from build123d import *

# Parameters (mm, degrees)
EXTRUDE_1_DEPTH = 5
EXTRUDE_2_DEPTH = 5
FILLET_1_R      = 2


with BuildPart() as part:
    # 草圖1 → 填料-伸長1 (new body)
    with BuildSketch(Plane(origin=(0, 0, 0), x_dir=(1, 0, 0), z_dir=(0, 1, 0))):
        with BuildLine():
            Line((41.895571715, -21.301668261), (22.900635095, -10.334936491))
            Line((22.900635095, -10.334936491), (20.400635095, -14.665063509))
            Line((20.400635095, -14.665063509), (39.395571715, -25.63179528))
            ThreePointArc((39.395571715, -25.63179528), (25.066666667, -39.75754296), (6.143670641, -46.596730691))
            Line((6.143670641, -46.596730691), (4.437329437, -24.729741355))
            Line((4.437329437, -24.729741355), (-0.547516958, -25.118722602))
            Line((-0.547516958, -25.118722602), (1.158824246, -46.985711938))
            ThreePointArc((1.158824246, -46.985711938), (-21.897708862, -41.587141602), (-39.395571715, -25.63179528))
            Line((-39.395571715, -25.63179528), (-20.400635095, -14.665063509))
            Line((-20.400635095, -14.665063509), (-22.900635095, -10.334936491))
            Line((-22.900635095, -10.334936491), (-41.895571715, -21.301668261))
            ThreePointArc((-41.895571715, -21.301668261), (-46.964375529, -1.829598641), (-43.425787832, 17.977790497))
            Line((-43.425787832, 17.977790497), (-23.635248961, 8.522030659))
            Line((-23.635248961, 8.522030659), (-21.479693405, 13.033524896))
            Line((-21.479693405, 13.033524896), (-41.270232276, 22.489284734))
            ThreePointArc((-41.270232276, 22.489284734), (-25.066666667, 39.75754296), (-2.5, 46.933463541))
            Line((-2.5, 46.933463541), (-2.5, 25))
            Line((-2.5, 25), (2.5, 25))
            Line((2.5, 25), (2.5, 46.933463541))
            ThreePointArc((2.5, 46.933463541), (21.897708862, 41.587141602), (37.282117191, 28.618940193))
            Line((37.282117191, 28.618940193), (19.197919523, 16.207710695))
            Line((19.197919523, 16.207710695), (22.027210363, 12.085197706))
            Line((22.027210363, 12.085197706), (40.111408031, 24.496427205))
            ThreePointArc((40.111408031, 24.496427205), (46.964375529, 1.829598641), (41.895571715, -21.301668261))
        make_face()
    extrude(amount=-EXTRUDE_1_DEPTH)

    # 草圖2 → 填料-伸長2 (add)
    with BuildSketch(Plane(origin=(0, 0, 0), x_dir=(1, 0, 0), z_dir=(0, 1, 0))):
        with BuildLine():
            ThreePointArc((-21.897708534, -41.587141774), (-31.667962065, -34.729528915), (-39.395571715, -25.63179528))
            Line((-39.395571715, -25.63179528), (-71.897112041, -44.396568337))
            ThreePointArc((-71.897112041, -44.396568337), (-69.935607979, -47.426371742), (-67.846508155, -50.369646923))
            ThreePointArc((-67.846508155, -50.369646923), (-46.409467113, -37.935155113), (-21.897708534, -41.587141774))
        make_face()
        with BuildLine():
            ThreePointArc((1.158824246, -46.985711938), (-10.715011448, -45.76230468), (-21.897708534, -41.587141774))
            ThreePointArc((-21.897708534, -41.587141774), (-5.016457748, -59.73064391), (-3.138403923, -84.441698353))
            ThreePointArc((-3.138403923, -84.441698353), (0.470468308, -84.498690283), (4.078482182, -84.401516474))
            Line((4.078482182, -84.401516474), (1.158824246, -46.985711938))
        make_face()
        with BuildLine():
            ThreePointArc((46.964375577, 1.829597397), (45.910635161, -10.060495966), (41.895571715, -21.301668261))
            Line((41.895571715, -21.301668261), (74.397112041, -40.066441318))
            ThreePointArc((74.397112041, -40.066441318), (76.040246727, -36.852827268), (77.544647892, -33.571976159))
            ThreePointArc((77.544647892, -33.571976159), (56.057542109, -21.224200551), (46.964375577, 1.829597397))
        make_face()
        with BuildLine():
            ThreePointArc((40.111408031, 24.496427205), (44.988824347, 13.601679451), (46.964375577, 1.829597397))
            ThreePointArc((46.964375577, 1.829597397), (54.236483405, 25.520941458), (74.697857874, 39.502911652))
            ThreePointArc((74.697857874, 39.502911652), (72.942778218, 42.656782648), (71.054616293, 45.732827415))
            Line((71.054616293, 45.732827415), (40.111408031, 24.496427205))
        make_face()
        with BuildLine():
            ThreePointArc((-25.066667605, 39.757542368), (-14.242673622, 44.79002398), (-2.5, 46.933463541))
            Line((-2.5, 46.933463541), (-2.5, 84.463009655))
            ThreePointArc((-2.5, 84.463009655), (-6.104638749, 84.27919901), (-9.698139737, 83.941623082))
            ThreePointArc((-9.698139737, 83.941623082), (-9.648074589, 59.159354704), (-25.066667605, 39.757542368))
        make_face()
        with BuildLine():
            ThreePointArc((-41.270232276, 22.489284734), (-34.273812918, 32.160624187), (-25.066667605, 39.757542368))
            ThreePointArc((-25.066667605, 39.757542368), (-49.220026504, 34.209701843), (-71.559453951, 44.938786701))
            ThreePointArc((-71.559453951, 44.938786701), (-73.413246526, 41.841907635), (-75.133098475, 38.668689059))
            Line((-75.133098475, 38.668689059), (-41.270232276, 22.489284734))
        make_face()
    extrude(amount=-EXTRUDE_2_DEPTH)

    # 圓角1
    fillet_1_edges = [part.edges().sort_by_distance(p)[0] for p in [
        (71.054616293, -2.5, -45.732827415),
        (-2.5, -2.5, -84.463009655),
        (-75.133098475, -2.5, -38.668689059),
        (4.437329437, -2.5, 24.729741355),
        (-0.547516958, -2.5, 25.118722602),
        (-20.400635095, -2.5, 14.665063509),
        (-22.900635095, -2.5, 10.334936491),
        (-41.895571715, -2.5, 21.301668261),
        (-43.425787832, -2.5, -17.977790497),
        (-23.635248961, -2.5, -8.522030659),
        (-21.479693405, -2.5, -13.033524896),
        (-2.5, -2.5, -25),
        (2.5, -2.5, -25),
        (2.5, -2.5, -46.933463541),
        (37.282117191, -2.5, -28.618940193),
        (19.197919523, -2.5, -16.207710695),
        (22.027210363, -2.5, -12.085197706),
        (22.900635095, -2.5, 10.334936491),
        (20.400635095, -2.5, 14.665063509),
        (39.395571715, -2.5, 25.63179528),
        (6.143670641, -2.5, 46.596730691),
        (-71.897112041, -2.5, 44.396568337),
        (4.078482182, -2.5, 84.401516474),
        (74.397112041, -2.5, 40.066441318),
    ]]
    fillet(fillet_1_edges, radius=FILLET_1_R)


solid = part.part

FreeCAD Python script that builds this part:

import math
import FreeCAD as App
import Part
import Sketcher

V = App.Vector
Q = App.Units.Quantity


def edges_at(feature, points):
    """Names of the edges that pass closest to the given points."""
    edges = feature.Shape.Edges
    near = lambda p: min(range(len(edges)), key=lambda i: edges[i].distToShape(Part.Vertex(*p))[0])
    return sorted({f"Edge{near(p) + 1}" for p in points})

doc = App.newDocument("Part")
body = doc.addObject("PartDesign::Body", "Body")

sketch1 = body.newObject("Sketcher::SketchObject", "Sketch")
sketch1.AttachmentSupport = (doc.getObject("XZ_Plane"), [""])
sketch1.MapMode = "FlatFace"
sketch1.addGeometry([
    Part.LineSegment(V(22.900635, 10.334936, 0), V(41.895572, 21.301668, 0)),
    Part.ArcOfCircle(Part.Circle(V(0, 0, 0), V(0, 0, 1), 47), math.radians(-31.412818), math.radians(26.950913)),
    Part.LineSegment(V(40.111408, -24.496427, 0), V(22.02721, -12.085198, 0)),
    Part.LineSegment(V(22.02721, -12.085198, 0), V(19.19792, -16.207711, 0)),
    Part.LineSegment(V(19.19792, -16.207711, 0), V(37.282117, -28.61894, 0)),
    Part.ArcOfCircle(Part.Circle(V(0, 0, 0), V(0, 0, 1), 47), math.radians(-86.950913), math.radians(-37.510992)),
    Part.LineSegment(V(2.5, -46.933464, 0), V(2.5, -25, 0)),
    Part.LineSegment(V(2.5, -25, 0), V(-2.5, -25, 0)),
    Part.LineSegment(V(-2.5, -25, 0), V(-2.5, -46.933464, 0)),
    Part.ArcOfCircle(Part.Circle(V(0, 0, 0), V(0, 0, 1), 47), math.radians(-151.412818), math.radians(-93.049087)),
    Part.LineSegment(V(-41.270232, -22.489285, 0), V(-21.479693, -13.033525, 0)),
    Part.LineSegment(V(-21.479693, -13.033525, 0), V(-23.635249, -8.522031, 0)),
    Part.LineSegment(V(-23.635249, -8.522031, 0), V(-43.425788, -17.97779, 0)),
    Part.ArcOfCircle(Part.Circle(V(0, 0, 0), V(0, 0, 1), 47), math.radians(153.049087), math.radians(202.489008)),
    Part.LineSegment(V(-41.895572, 21.301668, 0), V(-22.900635, 10.334936, 0)),
    Part.LineSegment(V(-22.900635, 10.334936, 0), V(-20.400635, 14.665064, 0)),
    Part.LineSegment(V(-20.400635, 14.665064, 0), V(-39.395572, 25.631795, 0)),
    Part.ArcOfCircle(Part.Circle(V(0, 0, 0), V(0, 0, 1), 47), math.radians(88.587182), math.radians(146.950913)),
    Part.LineSegment(V(1.158824, 46.985712, 0), V(-0.547517, 25.118723, 0)),
    Part.LineSegment(V(-0.547517, 25.118723, 0), V(4.437329, 24.729741, 0)),
    Part.LineSegment(V(4.437329, 24.729741, 0), V(6.143671, 46.596731, 0)),
    Part.ArcOfCircle(Part.Circle(V(0, 0, 0), V(0, 0, 1), 47), math.radians(33.049087), math.radians(82.489008)),
    Part.LineSegment(V(39.395572, 25.631795, 0), V(20.400635, 14.665064, 0)),
    Part.LineSegment(V(20.400635, 14.665064, 0), V(22.900635, 10.334936, 0)),
], False)
sketch1.addConstraint([
    Sketcher.Constraint("Coincident", 0, 2, 1, 2),
    Sketcher.Constraint("Coincident", 1, 1, 2, 1),
    Sketcher.Constraint("Coincident", 2, 2, 3, 1),
    Sketcher.Constraint("Coincident", 3, 2, 4, 1),
    Sketcher.Constraint("Coincident", 4, 2, 5, 2),
    Sketcher.Constraint("Coincident", 5, 1, 6, 1),
    Sketcher.Constraint("Coincident", 6, 2, 7, 1),
    Sketcher.Constraint("Coincident", 7, 2, 8, 1),
    Sketcher.Constraint("Coincident", 8, 2, 9, 2),
    Sketcher.Constraint("Coincident", 9, 1, 10, 1),
    Sketcher.Constraint("Coincident", 10, 2, 11, 1),
    Sketcher.Constraint("Coincident", 11, 2, 12, 1),
    Sketcher.Constraint("Coincident", 12, 2, 13, 2),
    Sketcher.Constraint("Coincident", 13, 1, 14, 1),
    Sketcher.Constraint("Coincident", 14, 2, 15, 1),
    Sketcher.Constraint("Coincident", 15, 2, 16, 1),
    Sketcher.Constraint("Coincident", 16, 2, 17, 2),
    Sketcher.Constraint("Coincident", 17, 1, 18, 1),
    Sketcher.Constraint("Coincident", 18, 2, 19, 1),
    Sketcher.Constraint("Coincident", 19, 2, 20, 1),
    Sketcher.Constraint("Coincident", 20, 2, 21, 2),
    Sketcher.Constraint("Coincident", 21, 1, 22, 1),
    Sketcher.Constraint("Coincident", 22, 2, 23, 1),
    Sketcher.Constraint("Coincident", 23, 2, 0, 1),
    Sketcher.Constraint("Vertical", 6),
    Sketcher.Constraint("Horizontal", 7),
    Sketcher.Constraint("Vertical", 8),
    Sketcher.Constraint("Coincident", 1, 3, -1, 1),
    Sketcher.Constraint("Coincident", 5, 3, -1, 1),
    Sketcher.Constraint("Coincident", 9, 3, -1, 1),
    Sketcher.Constraint("Coincident", 13, 3, -1, 1),
    Sketcher.Constraint("Coincident", 17, 3, -1, 1),
    Sketcher.Constraint("Coincident", 21, 3, -1, 1),
    Sketcher.Constraint("Equal", 1, 5),
    Sketcher.Constraint("Equal", 5, 9),
    Sketcher.Constraint("Equal", 9, 13),
    Sketcher.Constraint("Equal", 13, 17),
    Sketcher.Constraint("Equal", 17, 21),
    Sketcher.Constraint("Symmetric", 15, 2, 22, 2, -2),
    Sketcher.Constraint("Symmetric", 14, 2, 23, 2, -2),
    Sketcher.Constraint("Perpendicular", 2, 3),
    Sketcher.Constraint("Perpendicular", 3, 4),
    Sketcher.Constraint("Perpendicular", 10, 11),
    Sketcher.Constraint("Perpendicular", 11, 12),
    Sketcher.Constraint("Perpendicular", 14, 15),
    Sketcher.Constraint("Perpendicular", 15, 16),
    Sketcher.Constraint("Perpendicular", 18, 19),
    Sketcher.Constraint("Perpendicular", 19, 20),
    Sketcher.Constraint("Parallel", 0, 22),
    Sketcher.Constraint("Perpendicular", 22, 23),
    Sketcher.Constraint("Horizontal", 5, 1, 8, 2),
    Sketcher.Constraint("Equal", 0, 2),
    Sketcher.Constraint("Equal", 2, 4),
    Sketcher.Constraint("Equal", 4, 10),
    Sketcher.Constraint("Equal", 3, 11),
    Sketcher.Constraint("Equal", 10, 12),
    Sketcher.Constraint("Equal", 11, 15),
    Sketcher.Constraint("Equal", 14, 16),
    Sketcher.Constraint("Equal", 16, 18),
    Sketcher.Constraint("Equal", 15, 19),
    Sketcher.Constraint("Equal", 18, 20),
    Sketcher.Constraint("Radius", 1, Q("47 mm")),
    Sketcher.Constraint("DistanceX", 7, 2, 7, 1, Q("5 mm")),
    Sketcher.Constraint("Angle", 0, Q("30 deg")),
    Sketcher.Constraint("Distance", 3, Q("5 mm")),
    Sketcher.Constraint("DistanceY", 6, 2, -1, 1, Q("25 mm")),
    Sketcher.Constraint("DistanceY", 11, 2, 13, 1, Q("29.823699 mm")),
    Sketcher.Constraint("DistanceX", 20, 2, 0, 2, Q("35.751901 mm")),
    Sketcher.Constraint("DistanceX", -1, 1, 1, 1, Q("40.111408 mm")),
    Sketcher.Constraint("DistanceX", -1, 1, 2, 2, Q("22.02721 mm")),
])
pad1 = body.newObject("PartDesign::Pad", "Pad")
pad1.Profile = sketch1
pad1.Length = 5

sketch2 = body.newObject("Sketcher::SketchObject", "Sketch001")
sketch2.AttachmentSupport = (doc.getObject("XZ_Plane"), [""])
sketch2.MapMode = "FlatFace"
sketch2.addGeometry([
    Part.ArcOfCircle(Part.Circle(V(0, 0, 0), V(0, 0, 1), 47), math.radians(117.769047), math.radians(146.950913)),
    Part.LineSegment(V(-39.395572, 25.631795, 0), V(-71.897112, 44.396568, 0)),
    Part.ArcOfCircle(Part.Circle(V(0, 0, 0), V(0, 0, 1), 84.5), math.radians(143.40959), math.radians(148.304611)),
    Part.ArcOfCircle(Part.Circle(V(-39.369285, 74.768372, 0), V(0, 0, 1), 37.5), math.radians(-139.410681), math.radians(-62.230952)),
    Part.ArcOfCircle(Part.Circle(V(0, 0, 0), V(0, 0, 1), 47), math.radians(88.587182), math.radians(117.769047)),
    Part.ArcOfCircle(Part.Circle(V(-39.369285, 74.768372, 0), V(0, 0, 1), 37.5), math.radians(-62.230952), math.radians(14.948776)),
    Part.ArcOfCircle(Part.Circle(V(0, 0, 0), V(0, 0, 1), 84.5), math.radians(87.233484), math.radians(92.128505)),
    Part.LineSegment(V(4.078482, 84.401516, 0), V(1.158824, 46.985712, 0)),
    Part.ArcOfCircle(Part.Circle(V(0, 0, 0), V(0, 0, 1), 47), math.radians(-2.230951), math.radians(26.950913)),
    Part.LineSegment(V(41.895572, 21.301668, 0), V(74.397112, 40.066441, 0)),
    Part.ArcOfCircle(Part.Circle(V(0, 0, 0), V(0, 0, 1), 84.5), math.radians(23.40959), math.radians(28.304611)),
    Part.ArcOfCircle(Part.Circle(V(84.435952, -3.289385, 0), V(0, 0, 1), 37.5), math.radians(100.589319), math.radians(177.769045)),
    Part.ArcOfCircle(Part.Circle(V(0, 0, 0), V(0, 0, 1), 47), math.radians(-31.412818), math.radians(-2.230951)),
    Part.ArcOfCircle(Part.Circle(V(84.435952, -3.289385, 0), V(0, 0, 1), 37.5), math.radians(177.769045), math.radians(254.948776)),
    Part.ArcOfCircle(Part.Circle(V(0.000001, 0, 0), V(0, 0, 1), 84.499999), math.radians(-32.766516), math.radians(-27.871495)),
    Part.LineSegment(V(71.054616, -45.732827, 0), V(40.111408, -24.496427, 0)),
    Part.ArcOfCircle(Part.Circle(V(0, 0, 0), V(0, 0, 1), 47), math.radians(-122.230954), math.radians(-93.049087)),
    Part.LineSegment(V(-2.5, -46.933464, 0), V(-2.5, -84.46301, 0)),
    Part.ArcOfCircle(Part.Circle(V(0, 0, 0), V(0, 0, 1), 84.5), math.radians(-96.59041), math.radians(-91.695389)),
    Part.ArcOfCircle(Part.Circle(V(-45.066667, -71.478987, 0), V(0, 0, 1), 37.5), math.radians(-19.410681), math.radians(57.769049)),
    Part.ArcOfCircle(Part.Circle(V(0, 0, 0), V(0, 0, 1), 47), math.radians(-151.412818), math.radians(-122.230954)),
    Part.ArcOfCircle(Part.Circle(V(-45.066667, -71.478987, 0), V(0, 0, 1), 37.5), math.radians(57.769049), math.radians(134.948776)),
    Part.ArcOfCircle(Part.Circle(V(0, 0, 0), V(0, 0, 1), 84.5), math.radians(-152.766516), math.radians(-147.871495)),
    Part.LineSegment(V(-75.133098, -38.668689, 0), V(-41.270232, -22.489285, 0)),
], False)
sketch2.addConstraint([
    Sketcher.Constraint("Coincident", 0, 2, 1, 1),
    Sketcher.Constraint("Coincident", 1, 2, 2, 2),
    Sketcher.Constraint("Coincident", 2, 1, 3, 1),
    Sketcher.Constraint("Tangent", 3, 2, 0, 1),
    Sketcher.Constraint("Tangent", 4, 2, 5, 1),
    Sketcher.Constraint("Coincident", 5, 2, 6, 2),
    Sketcher.Constraint("Coincident", 6, 1, 7, 1),
    Sketcher.Constraint("Coincident", 7, 2, 4, 1),
    Sketcher.Constraint("Coincident", 8, 2, 9, 1),
    Sketcher.Constraint("Coincident", 9, 2, 10, 2),
    Sketcher.Constraint("Coincident", 10, 1, 11, 1),
    Sketcher.Constraint("Tangent", 11, 2, 8, 1),
    Sketcher.Constraint("Tangent", 12, 2, 13, 1),
    Sketcher.Constraint("Coincident", 13, 2, 14, 2),
    Sketcher.Constraint("Coincident", 14, 1, 15, 1),
    Sketcher.Constraint("Coincident", 15, 2, 12, 1),
    Sketcher.Constraint("Coincident", 16, 2, 17, 1),
    Sketcher.Constraint("Coincident", 17, 2, 18, 2),
    Sketcher.Constraint("Coincident", 18, 1, 19, 1),
    Sketcher.Constraint("Tangent", 19, 2, 16, 1),
    Sketcher.Constraint("Tangent", 20, 2, 21, 1),
    Sketcher.Constraint("Coincident", 21, 2, 22, 2),
    Sketcher.Constraint("Coincident", 22, 1, 23, 1),
    Sketcher.Constraint("Coincident", 23, 2, 20, 1),
    Sketcher.Constraint("Vertical", 17),
    Sketcher.Constraint("Coincident", 0, 3, -1, 1),
    Sketcher.Constraint("Coincident", 2, 3, -1, 1),
    Sketcher.Constraint("Coincident", 4, 3, -1, 1),
    Sketcher.Constraint("Coincident", 6, 3, -1, 1),
    Sketcher.Constraint("Coincident", 8, 3, -1, 1),
    Sketcher.Constraint("Coincident", 10, 3, -1, 1),
    Sketcher.Constraint("Coincident", 12, 3, -1, 1),
    Sketcher.Constraint("Coincident", 14, 3, -1, 1),
    Sketcher.Constraint("Coincident", 16, 3, -1, 1),
    Sketcher.Constraint("Coincident", 18, 3, -1, 1),
    Sketcher.Constraint("Coincident", 20, 3, -1, 1),
    Sketcher.Constraint("Coincident", 22, 3, -1, 1),
    Sketcher.Constraint("Coincident", 5, 3, 3, 3),
    Sketcher.Constraint("Coincident", 13, 3, 11, 3),
    Sketcher.Constraint("Coincident", 21, 3, 19, 3),
    Sketcher.Constraint("Equal", 0, 4),
    Sketcher.Constraint("Equal", 2, 6),
    Sketcher.Constraint("Equal", 4, 8),
    Sketcher.Constraint("Equal", 6, 10),
    Sketcher.Constraint("Equal", 5, 11),
    Sketcher.Constraint("Equal", 8, 12),
    Sketcher.Constraint("Equal", 10, 14),
    Sketcher.Constraint("Equal", 12, 16),
    Sketcher.Constraint("Equal", 14, 18),
    Sketcher.Constraint("Equal", 13, 19),
    Sketcher.Constraint("Equal", 16, 20),
    Sketcher.Constraint("Equal", 18, 22),
    Sketcher.Constraint("Equal", 1, 7),
    Sketcher.Constraint("Equal", 7, 9),
    Sketcher.Constraint("Equal", 9, 15),
    Sketcher.Constraint("Equal", 15, 23),
    Sketcher.Constraint("Radius", 0, Q("47 mm")),
    Sketcher.Constraint("Radius", 2, Q("84.5 mm")),
    Sketcher.Constraint("Radius", 3, Q("37.5 mm")),
    Sketcher.Constraint("Angle", 1, Q("150 deg")),
    Sketcher.Constraint("Angle", 9, Q("30 deg")),
    Sketcher.Constraint("DistanceX", 19, 3, 19, 2, Q("19.999999 mm")),
    Sketcher.Constraint("DistanceX", 16, 2, -1, 1, Q("2.5 mm")),
    Sketcher.Constraint("DistanceX", 22, 1, -1, 1, Q("75.133098 mm")),
    Sketcher.Constraint("DistanceY", 14, 1, 15, 2, Q("21.2364 mm")),
    Sketcher.Constraint("DistanceY", 21, 2, 23, 2, Q("22.449502 mm")),
    Sketcher.Constraint("DistanceY", -1, 1, 3, 3, Q("74.768372 mm")),
    Sketcher.Constraint("DistanceX", -1, 1, 11, 3, Q("84.435952 mm")),
    Sketcher.Constraint("DistanceY", -1, 1, 7, 2, Q("46.985712 mm")),
])
pad2 = body.newObject("PartDesign::Pad", "Pad001")
pad2.Profile = sketch2
pad2.Length = 5
doc.recompute()

fillet = body.newObject("PartDesign::Fillet", "Fillet")
fillet.Base = (pad2, edges_at(pad2, [
    (71.055, -2.5, -45.733),
    (-2.5, -2.5, -84.463),
    (-75.133, -2.5, -38.669),
    (4.437, -2.5, 24.73),
    (-0.548, -2.5, 25.119),
    (-20.401, -2.5, 14.665),
    (-22.901, -2.5, 10.335),
    (-41.896, -2.5, 21.302),
    (-43.426, -2.5, -17.978),
    (-23.635, -2.5, -8.522),
    (-21.48, -2.5, -13.034),
    (-2.5, -2.5, -25),
    (2.5, -2.5, -25),
    (2.5, -2.5, -46.933),
    (37.282, -2.5, -28.619),
    (19.198, -2.5, -16.208),
    (22.027, -2.5, -12.085),
    (22.901, -2.5, 10.335),
    (20.401, -2.5, 14.665),
    (39.396, -2.5, 25.632),
    (6.144, -2.5, 46.597),
    (-71.897, -2.5, 44.397),
    (4.078, -2.5, 84.402),
    (74.397, -2.5, 40.066),
]))
fillet.Radius = 2

doc.recompute()
